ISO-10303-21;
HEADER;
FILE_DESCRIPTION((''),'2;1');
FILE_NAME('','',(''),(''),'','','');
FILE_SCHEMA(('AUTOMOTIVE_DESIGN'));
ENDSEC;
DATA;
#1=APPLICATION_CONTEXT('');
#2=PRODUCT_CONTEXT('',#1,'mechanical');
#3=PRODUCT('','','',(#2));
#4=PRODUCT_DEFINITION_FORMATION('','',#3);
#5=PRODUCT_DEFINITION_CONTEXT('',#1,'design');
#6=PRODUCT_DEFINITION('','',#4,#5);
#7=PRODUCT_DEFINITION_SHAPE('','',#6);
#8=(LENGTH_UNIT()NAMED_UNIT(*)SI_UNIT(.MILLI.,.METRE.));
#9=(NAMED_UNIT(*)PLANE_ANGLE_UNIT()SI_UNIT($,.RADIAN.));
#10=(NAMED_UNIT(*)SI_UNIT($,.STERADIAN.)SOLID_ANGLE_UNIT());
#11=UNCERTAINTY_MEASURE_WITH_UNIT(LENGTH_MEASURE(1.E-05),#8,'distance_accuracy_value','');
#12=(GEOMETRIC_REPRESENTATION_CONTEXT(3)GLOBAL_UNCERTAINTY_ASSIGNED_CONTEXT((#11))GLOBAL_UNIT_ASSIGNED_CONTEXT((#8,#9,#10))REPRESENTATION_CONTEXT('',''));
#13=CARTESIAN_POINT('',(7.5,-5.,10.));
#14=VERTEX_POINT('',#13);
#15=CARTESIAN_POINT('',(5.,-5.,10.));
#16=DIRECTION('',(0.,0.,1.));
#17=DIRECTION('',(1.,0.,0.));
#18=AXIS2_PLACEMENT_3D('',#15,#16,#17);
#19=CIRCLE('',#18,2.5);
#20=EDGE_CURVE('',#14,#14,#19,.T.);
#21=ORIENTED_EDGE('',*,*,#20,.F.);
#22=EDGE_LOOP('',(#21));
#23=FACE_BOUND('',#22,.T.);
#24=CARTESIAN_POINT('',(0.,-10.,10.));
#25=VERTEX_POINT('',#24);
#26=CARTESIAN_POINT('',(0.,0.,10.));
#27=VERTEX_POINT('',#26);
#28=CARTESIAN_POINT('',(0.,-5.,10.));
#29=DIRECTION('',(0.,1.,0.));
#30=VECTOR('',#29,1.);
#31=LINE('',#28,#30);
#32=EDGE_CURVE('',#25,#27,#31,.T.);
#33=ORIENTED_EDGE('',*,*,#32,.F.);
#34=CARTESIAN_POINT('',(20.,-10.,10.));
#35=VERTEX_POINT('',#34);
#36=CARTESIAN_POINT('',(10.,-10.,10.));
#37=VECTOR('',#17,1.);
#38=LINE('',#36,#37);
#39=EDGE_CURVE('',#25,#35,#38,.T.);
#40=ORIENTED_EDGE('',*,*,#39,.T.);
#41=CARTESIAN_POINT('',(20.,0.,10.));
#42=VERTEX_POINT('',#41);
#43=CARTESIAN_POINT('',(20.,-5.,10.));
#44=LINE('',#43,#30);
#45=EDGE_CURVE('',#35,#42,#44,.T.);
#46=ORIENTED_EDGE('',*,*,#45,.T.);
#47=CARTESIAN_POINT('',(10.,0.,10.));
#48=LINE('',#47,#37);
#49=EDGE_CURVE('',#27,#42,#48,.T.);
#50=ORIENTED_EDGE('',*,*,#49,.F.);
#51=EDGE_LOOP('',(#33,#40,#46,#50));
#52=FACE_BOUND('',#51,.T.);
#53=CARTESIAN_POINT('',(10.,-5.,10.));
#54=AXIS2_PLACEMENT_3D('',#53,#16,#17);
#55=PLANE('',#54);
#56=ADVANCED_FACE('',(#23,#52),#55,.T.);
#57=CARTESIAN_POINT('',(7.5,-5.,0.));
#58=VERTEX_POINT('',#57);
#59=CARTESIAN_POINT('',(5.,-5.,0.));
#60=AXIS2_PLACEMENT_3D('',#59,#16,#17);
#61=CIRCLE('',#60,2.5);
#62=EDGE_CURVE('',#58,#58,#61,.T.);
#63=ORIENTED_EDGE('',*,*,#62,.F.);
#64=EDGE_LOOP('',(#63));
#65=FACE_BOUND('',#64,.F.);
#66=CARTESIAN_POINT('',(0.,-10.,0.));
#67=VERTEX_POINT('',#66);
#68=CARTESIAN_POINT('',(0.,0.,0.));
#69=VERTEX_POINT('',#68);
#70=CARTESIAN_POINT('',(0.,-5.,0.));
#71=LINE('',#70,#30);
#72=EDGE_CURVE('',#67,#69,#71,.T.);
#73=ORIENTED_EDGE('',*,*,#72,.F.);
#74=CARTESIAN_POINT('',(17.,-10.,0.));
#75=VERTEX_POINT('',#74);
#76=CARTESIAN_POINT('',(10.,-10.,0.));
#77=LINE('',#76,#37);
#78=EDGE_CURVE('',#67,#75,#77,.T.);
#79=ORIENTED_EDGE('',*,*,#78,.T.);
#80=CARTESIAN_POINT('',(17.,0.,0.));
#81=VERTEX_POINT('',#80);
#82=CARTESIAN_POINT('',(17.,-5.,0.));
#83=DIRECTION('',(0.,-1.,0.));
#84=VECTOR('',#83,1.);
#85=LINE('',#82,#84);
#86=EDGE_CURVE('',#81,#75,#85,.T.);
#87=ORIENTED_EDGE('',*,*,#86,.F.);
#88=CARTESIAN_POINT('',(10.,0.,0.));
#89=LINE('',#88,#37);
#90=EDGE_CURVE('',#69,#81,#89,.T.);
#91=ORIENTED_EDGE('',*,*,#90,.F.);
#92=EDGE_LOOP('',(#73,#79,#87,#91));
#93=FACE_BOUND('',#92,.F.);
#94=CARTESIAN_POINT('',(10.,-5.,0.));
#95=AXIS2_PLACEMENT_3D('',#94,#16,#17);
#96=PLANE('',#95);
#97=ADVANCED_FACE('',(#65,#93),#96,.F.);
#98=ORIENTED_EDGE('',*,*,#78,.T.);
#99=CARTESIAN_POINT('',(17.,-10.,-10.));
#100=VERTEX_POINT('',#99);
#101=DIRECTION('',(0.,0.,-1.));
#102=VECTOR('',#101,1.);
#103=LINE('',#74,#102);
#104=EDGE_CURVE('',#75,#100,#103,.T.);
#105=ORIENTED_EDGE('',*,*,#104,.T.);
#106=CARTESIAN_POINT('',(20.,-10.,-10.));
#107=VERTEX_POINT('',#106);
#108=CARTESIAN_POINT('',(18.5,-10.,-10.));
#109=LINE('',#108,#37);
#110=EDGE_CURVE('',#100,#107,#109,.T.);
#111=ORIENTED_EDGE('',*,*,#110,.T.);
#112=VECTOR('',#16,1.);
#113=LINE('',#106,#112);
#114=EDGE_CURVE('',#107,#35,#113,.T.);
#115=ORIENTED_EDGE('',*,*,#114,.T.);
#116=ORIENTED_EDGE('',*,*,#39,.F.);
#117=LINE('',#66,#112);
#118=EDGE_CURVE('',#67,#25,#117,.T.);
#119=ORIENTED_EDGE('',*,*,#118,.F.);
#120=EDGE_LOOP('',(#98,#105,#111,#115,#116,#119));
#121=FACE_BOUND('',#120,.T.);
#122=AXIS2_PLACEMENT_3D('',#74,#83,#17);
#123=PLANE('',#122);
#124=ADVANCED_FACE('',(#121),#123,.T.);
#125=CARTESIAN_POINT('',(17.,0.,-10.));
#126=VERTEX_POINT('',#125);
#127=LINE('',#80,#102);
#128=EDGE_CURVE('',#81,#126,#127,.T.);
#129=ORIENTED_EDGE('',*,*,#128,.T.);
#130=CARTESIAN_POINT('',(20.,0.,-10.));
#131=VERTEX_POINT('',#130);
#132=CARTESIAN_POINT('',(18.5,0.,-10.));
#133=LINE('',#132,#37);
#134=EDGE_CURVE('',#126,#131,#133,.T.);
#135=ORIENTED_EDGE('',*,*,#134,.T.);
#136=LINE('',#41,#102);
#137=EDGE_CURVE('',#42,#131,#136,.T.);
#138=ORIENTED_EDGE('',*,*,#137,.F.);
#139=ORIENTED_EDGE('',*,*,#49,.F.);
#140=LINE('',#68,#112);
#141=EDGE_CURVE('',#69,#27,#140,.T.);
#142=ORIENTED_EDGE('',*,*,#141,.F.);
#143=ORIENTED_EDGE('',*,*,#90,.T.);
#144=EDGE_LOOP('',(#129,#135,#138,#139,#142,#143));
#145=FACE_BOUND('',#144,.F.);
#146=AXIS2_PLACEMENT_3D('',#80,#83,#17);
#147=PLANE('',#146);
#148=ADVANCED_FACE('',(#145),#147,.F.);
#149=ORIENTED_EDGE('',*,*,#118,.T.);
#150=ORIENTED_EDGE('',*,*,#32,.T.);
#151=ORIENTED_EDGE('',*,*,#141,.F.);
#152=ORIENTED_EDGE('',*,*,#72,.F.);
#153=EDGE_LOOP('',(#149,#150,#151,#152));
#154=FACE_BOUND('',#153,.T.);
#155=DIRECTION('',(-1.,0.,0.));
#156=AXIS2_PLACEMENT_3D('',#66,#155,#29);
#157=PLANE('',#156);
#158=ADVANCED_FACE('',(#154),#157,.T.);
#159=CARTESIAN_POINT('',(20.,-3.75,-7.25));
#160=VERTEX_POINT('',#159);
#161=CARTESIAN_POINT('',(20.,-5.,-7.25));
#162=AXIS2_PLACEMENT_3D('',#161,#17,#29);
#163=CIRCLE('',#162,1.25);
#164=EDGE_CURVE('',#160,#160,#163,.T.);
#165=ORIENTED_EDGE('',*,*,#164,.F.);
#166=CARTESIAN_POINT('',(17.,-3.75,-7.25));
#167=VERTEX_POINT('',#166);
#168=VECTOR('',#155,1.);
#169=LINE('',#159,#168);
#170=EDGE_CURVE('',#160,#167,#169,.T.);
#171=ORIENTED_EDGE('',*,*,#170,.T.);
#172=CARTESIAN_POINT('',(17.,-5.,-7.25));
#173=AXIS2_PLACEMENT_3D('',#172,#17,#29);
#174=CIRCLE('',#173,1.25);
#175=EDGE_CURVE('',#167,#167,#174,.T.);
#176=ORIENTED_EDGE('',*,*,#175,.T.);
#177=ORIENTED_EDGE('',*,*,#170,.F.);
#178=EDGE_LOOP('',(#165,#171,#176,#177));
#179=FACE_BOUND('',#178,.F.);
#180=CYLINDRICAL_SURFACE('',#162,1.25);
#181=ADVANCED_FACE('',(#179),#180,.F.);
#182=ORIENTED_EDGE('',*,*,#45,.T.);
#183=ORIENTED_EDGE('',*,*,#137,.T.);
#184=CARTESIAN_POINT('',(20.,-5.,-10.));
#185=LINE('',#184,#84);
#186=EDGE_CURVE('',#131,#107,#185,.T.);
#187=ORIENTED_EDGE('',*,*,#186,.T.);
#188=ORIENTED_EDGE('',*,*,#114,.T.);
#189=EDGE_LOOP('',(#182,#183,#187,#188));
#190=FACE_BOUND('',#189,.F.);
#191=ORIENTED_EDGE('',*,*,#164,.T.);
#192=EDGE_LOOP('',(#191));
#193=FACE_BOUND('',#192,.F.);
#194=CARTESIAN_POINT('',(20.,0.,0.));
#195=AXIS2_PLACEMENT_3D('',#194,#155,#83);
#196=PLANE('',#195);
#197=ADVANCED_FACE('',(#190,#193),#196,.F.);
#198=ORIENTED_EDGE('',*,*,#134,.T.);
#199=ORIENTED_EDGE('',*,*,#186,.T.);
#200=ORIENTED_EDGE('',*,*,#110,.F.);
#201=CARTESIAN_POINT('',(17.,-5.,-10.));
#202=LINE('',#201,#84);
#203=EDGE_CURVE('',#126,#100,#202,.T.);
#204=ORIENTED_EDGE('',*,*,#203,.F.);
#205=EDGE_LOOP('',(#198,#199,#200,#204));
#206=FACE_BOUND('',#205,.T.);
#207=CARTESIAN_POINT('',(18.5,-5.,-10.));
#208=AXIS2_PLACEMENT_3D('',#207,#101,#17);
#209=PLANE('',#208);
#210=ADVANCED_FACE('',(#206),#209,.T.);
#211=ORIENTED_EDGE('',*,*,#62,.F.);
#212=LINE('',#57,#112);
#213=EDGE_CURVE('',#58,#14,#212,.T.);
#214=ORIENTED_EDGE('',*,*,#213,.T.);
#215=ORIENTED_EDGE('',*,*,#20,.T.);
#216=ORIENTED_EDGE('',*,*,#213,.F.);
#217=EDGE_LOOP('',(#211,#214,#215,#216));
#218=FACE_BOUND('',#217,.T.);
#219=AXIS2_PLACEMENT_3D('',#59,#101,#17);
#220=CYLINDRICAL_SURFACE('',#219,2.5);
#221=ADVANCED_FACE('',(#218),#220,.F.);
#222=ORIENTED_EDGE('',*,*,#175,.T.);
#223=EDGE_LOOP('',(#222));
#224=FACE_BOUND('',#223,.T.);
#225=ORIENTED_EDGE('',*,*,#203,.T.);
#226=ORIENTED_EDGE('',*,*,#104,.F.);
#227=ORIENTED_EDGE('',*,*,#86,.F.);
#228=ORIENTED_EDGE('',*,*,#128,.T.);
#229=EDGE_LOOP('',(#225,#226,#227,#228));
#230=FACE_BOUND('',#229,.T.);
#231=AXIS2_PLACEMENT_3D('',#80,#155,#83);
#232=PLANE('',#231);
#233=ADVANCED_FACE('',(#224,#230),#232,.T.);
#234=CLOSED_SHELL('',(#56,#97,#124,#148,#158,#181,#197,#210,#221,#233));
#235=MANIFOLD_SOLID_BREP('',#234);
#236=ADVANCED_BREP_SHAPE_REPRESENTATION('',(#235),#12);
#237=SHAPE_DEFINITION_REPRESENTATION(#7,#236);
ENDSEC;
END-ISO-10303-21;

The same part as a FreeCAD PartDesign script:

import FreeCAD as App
import Part
import Sketcher

doc = App.newDocument("Part")
body = doc.addObject("PartDesign::Body", "Body")

sketch1 = body.newObject("Sketcher::SketchObject", "Sketch")
sketch1.AttachmentSupport = (doc.getObject("XY_Plane"), [""])
sketch1.MapMode = "FlatFace"
sketch1.addGeometry(Part.LineSegment(App.Vector(0, 0, 0), App.Vector(0, -10, 0)), False)
sketch1.addGeometry(Part.LineSegment(App.Vector(0, -10, 0), App.Vector(20, -10, 0)), False)
sketch1.addGeometry(Part.LineSegment(App.Vector(20, -10, 0), App.Vector(20, 0, 0)), False)
sketch1.addGeometry(Part.LineSegment(App.Vector(20, 0, 0), App.Vector(0, 0, 0)), False)
sketch1.addGeometry(Part.Circle(App.Vector(5, -5, 0), App.Vector(0, 0, 1), 2.5), False)
sketch1.addConstraint(Sketcher.Constraint("Coincident", 0, 2, 1, 1))
sketch1.addConstraint(Sketcher.Constraint("Coincident", 1, 2, 2, 1))
sketch1.addConstraint(Sketcher.Constraint("Coincident", 2, 2, 3, 1))
sketch1.addConstraint(Sketcher.Constraint("Coincident", 3, 2, 0, 1))
sketch1.addConstraint(Sketcher.Constraint("Vertical", 0))
sketch1.addConstraint(Sketcher.Constraint("Horizontal", 1))
sketch1.addConstraint(Sketcher.Constraint("Vertical", 2))
sketch1.addConstraint(Sketcher.Constraint("Horizontal", 3))
sketch1.addConstraint(Sketcher.Constraint("Coincident", 3, 2, -1, 1))
sketch1.addConstraint(Sketcher.Constraint("Diameter", 4, 5.0))
sketch1.addConstraint(Sketcher.Constraint("DistanceX", 1, 1, 1, 2, 20.0))
sketch1.addConstraint(Sketcher.Constraint("DistanceY", 0, 2, 0, 1, 10.0))
sketch1.addConstraint(Sketcher.Constraint("DistanceX", -1, 1, 4, 3, 5.0))
sketch1.addConstraint(Sketcher.Constraint("DistanceY", 4, 3, -1, 1, 5.0))
pad1 = body.newObject("PartDesign::Pad", "Pad")
pad1.Profile = sketch1
pad1.Length = 10

sketch2 = body.newObject("Sketcher::SketchObject", "Sketch001")
sketch2.AttachmentSupport = (doc.getObject("XY_Plane"), [""])
sketch2.MapMode = "FlatFace"
sketch2.addGeometry(Part.LineSegment(App.Vector(17, -10, 0), App.Vector(17, 0, 0)), False)
sketch2.addGeometry(Part.LineSegment(App.Vector(17, 0, 0), App.Vector(20, 0, 0)), False)
sketch2.addGeometry(Part.LineSegment(App.Vector(20, 0, 0), App.Vector(20, -10, 0)), False)
sketch2.addGeometry(Part.LineSegment(App.Vector(20, -10, 0), App.Vector(17, -10, 0)), False)
sketch2.addConstraint(Sketcher.Constraint("Coincident", 0, 2, 1, 1))
sketch2.addConstraint(Sketcher.Constraint("Coincident", 1, 2, 2, 1))
sketch2.addConstraint(Sketcher.Constraint("Coincident", 2, 2, 3, 1))
sketch2.addConstraint(Sketcher.Constraint("Coincident", 3, 2, 0, 1))
sketch2.addConstraint(Sketcher.Constraint("Vertical", 0))
sketch2.addConstraint(Sketcher.Constraint("Horizontal", 1))
sketch2.addConstraint(Sketcher.Constraint("Vertical", 2))
sketch2.addConstraint(Sketcher.Constraint("Horizontal", 3))
sketch2.addConstraint(Sketcher.Constraint("PointOnObject", 0, 2, -1))
sketch2.addConstraint(Sketcher.Constraint("DistanceX", 1, 1, 1, 2, 3.0))
sketch2.addConstraint(Sketcher.Constraint("DistanceY", 0, 1, 0, 2, 10.0))
sketch2.addConstraint(Sketcher.Constraint("DistanceX", -1, 1, 0, 2, 17.0))
pad2 = body.newObject("PartDesign::Pad", "Pad001")
pad2.Profile = sketch2
pad2.Length = 10
pad2.Reversed = True

sketch3 = body.newObject("Sketcher::SketchObject", "Sketch002")
sketch3.AttachmentSupport = (doc.getObject("YZ_Plane"), [""])
sketch3.MapMode = "FlatFace"
sketch3.AttachmentOffset = App.Placement(App.Vector(0, 0, 20), App.Rotation())
sketch3.addGeometry(Part.Circle(App.Vector(-5, -7.25, 0), App.Vector(0, 0, 1), 1.25), False)
sketch3.addConstraint(Sketcher.Constraint("Diameter", 0, 2.5))
sketch3.addConstraint(Sketcher.Constraint("DistanceX", 0, 3, -1, 1, 5.0))
sketch3.addConstraint(Sketcher.Constraint("DistanceY", 0, 3, -1, 1, 7.25))
pocket1 = body.newObject("PartDesign::Pocket", "Pocket")
pocket1.Profile = sketch3
pocket1.Type = "ThroughAll"

doc.recompute()
